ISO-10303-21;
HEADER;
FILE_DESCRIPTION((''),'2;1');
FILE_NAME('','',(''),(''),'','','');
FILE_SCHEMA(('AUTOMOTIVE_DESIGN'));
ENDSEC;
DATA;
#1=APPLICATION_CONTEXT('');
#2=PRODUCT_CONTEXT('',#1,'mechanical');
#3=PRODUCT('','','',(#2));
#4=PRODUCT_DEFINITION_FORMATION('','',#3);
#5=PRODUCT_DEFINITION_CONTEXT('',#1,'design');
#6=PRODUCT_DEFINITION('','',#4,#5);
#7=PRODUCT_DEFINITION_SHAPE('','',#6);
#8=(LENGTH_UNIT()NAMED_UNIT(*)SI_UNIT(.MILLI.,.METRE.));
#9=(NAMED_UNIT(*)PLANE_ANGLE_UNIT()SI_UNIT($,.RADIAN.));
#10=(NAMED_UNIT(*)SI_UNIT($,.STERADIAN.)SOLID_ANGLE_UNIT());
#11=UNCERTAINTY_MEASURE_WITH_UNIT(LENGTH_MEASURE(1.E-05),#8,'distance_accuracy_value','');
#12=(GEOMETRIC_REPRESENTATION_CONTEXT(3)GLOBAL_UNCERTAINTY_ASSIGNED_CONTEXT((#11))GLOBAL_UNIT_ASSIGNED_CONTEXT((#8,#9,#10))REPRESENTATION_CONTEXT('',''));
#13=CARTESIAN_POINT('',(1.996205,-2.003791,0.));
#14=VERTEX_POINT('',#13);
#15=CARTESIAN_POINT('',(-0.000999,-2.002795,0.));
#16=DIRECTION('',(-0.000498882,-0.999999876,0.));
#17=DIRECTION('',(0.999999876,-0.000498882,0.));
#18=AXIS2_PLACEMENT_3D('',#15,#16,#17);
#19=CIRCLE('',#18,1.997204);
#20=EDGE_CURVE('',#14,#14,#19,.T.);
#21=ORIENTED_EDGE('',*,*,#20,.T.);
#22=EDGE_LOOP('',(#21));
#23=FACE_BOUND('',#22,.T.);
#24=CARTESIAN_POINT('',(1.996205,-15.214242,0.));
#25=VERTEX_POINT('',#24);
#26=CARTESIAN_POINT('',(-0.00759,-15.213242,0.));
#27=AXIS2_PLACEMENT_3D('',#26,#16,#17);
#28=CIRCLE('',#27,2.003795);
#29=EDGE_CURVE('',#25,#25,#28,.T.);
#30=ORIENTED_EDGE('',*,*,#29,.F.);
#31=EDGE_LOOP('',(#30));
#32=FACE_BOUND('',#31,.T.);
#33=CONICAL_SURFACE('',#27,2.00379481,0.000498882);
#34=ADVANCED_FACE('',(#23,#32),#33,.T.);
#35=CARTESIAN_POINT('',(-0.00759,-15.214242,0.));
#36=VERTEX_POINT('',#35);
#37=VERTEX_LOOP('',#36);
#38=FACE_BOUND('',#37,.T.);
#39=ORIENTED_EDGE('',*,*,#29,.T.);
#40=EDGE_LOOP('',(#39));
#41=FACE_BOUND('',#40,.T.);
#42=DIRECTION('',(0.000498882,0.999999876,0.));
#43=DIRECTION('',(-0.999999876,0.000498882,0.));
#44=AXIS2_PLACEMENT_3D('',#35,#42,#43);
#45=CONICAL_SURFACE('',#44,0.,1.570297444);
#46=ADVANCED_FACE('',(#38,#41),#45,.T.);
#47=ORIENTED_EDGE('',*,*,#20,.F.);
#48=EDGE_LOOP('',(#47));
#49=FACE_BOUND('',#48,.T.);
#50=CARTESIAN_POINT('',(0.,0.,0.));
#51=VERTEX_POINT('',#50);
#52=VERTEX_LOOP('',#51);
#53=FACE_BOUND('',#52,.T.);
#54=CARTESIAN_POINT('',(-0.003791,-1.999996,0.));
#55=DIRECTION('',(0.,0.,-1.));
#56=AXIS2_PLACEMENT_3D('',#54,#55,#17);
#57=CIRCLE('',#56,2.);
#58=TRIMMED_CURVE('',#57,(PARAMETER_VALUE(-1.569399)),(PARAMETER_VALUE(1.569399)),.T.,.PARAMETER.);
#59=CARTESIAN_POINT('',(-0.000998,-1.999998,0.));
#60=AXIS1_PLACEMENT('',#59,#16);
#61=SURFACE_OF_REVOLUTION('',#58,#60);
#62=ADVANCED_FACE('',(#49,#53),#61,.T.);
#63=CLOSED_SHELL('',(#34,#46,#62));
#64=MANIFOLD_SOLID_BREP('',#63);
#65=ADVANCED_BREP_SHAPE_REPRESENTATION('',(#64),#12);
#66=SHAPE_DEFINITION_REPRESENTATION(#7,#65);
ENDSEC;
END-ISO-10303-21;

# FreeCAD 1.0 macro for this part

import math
import FreeCAD as App
import Part
import Sketcher

doc = App.newDocument("Part")
body = doc.addObject("PartDesign::Body", "Body")

sketch1 = doc.addObject("Sketcher::SketchObject", "Sketch")
body.addObject(sketch1)
sketch1.AttachmentSupport = (doc.XY_Plane, [""])
sketch1.MapMode = "FlatFace"
sketch1.addGeometry([
    Part.LineSegment(App.Vector(2, -15.2, 0), App.Vector(2, -2, 0)),
    Part.ArcOfCircle(Part.Circle(App.Vector(0, -2, 0), App.Vector(0, 0, 1), 2), math.radians(0), math.radians(90)),
    Part.LineSegment(App.Vector(0, 0, 0), App.Vector(0, -15.2, 0)),
    Part.LineSegment(App.Vector(0, -15.2, 0), App.Vector(2, -15.2, 0)),
], False)
sketch1.addGeometry(Part.LineSegment(App.Vector(0, -15.2, 0), App.Vector(0, 0, 0)), True)
sketch1.addConstraint([
    Sketcher.Constraint("Coincident", 0, 2, 1, 1),
    Sketcher.Constraint("Coincident", 1, 2, 2, 1),
    Sketcher.Constraint("Coincident", 2, 2, 3, 1),
    Sketcher.Constraint("Coincident", 3, 2, 0, 1),
    Sketcher.Constraint("Vertical", 0),
    Sketcher.Constraint("Horizontal", 3),
    Sketcher.Constraint("Coincident", 1, 2, -1, 1),
    Sketcher.Constraint("Coincident", 4, 2, -1, 1),
    Sketcher.Constraint("Coincident", 4, 1, 2, 2),
    Sketcher.Constraint("Radius", 1, 2.0),
    Sketcher.Constraint("DistanceY", 0, 1, 0, 2, 13.210451),
    Sketcher.Constraint("DistanceX", 2, 2, 1, 3, 0.003799),
    Sketcher.Constraint("DistanceX", 1, 3, -1, 1, 0.003791),
    Sketcher.Constraint("DistanceY", 0, 2, -1, 1, 2.003791),
])
revolution = doc.addObject("PartDesign::Revolution", "Revolution")
body.addObject(revolution)
revolution.Profile = sketch1
revolution.ReferenceAxis = (sketch1, ["Axis0"])
revolution.Angle = 360

doc.recompute()
